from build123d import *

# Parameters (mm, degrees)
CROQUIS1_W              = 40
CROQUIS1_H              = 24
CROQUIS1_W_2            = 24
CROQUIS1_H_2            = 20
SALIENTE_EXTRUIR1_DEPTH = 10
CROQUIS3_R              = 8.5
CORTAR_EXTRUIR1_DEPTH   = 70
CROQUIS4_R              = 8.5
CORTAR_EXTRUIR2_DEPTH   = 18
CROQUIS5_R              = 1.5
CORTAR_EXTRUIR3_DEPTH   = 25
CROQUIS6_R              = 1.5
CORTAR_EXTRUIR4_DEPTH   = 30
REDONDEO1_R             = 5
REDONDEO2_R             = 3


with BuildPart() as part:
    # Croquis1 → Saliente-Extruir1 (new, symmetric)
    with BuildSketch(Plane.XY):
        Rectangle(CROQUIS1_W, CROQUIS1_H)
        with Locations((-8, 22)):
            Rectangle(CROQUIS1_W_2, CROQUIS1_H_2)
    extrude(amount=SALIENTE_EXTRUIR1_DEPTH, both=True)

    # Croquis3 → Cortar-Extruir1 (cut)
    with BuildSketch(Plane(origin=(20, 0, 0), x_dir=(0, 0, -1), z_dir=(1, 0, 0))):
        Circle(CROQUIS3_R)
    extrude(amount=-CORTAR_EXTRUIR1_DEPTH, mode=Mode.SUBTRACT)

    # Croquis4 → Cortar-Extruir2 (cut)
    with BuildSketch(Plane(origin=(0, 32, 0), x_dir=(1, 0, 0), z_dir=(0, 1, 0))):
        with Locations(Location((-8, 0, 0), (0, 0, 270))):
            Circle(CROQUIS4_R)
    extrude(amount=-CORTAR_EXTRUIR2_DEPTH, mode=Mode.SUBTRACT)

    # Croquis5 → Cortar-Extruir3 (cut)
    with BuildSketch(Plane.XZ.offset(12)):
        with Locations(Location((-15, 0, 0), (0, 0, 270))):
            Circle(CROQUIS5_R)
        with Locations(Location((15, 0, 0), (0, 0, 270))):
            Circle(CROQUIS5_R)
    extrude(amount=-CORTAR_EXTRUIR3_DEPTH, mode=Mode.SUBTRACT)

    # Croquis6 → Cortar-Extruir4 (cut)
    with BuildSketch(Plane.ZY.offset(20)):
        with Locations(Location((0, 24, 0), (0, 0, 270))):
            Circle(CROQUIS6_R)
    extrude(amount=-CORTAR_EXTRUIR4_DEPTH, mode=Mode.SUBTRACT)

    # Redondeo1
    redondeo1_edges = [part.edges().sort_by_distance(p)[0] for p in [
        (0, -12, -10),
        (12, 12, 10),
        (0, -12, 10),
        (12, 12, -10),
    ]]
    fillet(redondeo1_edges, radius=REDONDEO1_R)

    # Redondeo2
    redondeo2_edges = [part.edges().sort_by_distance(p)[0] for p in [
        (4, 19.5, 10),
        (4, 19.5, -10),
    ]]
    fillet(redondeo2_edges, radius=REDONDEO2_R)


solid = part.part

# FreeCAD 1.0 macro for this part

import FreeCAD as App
import Part
import Sketcher
from FreeCAD import Vector
Q = App.Units.Quantity


def edges_at(feature, points):
    """Names of the edges that pass closest to the given points."""
    edges = feature.Shape.Edges
    near = lambda p: min(range(len(edges)), key=lambda i: edges[i].distToShape(Part.Vertex(*p))[0])
    return sorted({f"Edge{near(p) + 1}" for p in points})


def add_polygon(sketch, points):
    """Adds a closed chain of lines whose ends are joined by coincident constraints."""
    first, n = sketch.GeometryCount, len(points)
    for a, b in zip(points, points[1:] + points[:1]):
        sketch.addGeometry(Part.LineSegment(App.Vector(*a, 0), App.Vector(*b, 0)), False)
    for i in range(n):
        sketch.addConstraint(Sketcher.Constraint("Coincident", first + i, 2, first + (i + 1) % n, 1))

doc = App.newDocument("Part")
params = doc.addObject("Spreadsheet::Sheet", "Params")
for row, (alias, value) in enumerate([
    ("sketch1_width", "40 mm"),
    ("sketch1_width2", "16 mm"),
    ("sketch1_height", "20 mm"),
    ("pad1_length", "20 mm"),
    ("sketch2_diameter", "17 mm"),
    ("pocket1_length", "70 mm"),
    ("sketch3_diameter", "17 mm"),
    ("pocket2_length", "18 mm"),
    ("sketch4_diameter", "3 mm"),
    ("pocket3_length", "25 mm"),
    ("sketch5_diameter", "3 mm"),
    ("pocket4_length", "30 mm"),
    ("fillet_radius", "5 mm"),
    ("fillet2_radius", "3 mm"),
], start=1):
    params.set(f"A{row}", alias)
    params.set(f"B{row}", "=" + value)
    params.setAlias(f"B{row}", alias)

body = doc.addObject("PartDesign::Body", "Body")

# Sketch on XY plane
sketch1 = body.newObject("Sketcher::SketchObject", "Sketch")
sketch1.AttachmentSupport = (doc.getObject("XY_Plane"), [""])
sketch1.MapMode = "FlatFace"
add_polygon(sketch1, [(-20, -12), (20, -12), (20, 12), (4, 12), (4, 32), (-20, 32)])  # lines 0-5
sketch1.addConstraint([
    Sketcher.Constraint("Horizontal", 0),
    Sketcher.Constraint("Vertical", 1),
    Sketcher.Constraint("Horizontal", 2),
    Sketcher.Constraint("Vertical", 3),
    Sketcher.Constraint("Horizontal", 4),
    Sketcher.Constraint("Vertical", 5),
    Sketcher.Constraint("Symmetric", 1, 2, 5, 2, -1, 1),
    Sketcher.Constraint("Equal", 4, 1),
    Sketcher.Constraint("DistanceX", 0, 1, 0, 2, Q("40 mm")),
    Sketcher.Constraint("DistanceX", 2, 2, 2, 1, Q("16 mm")),
    Sketcher.Constraint("DistanceY", 3, 1, 3, 2, Q("20 mm")),
])
sketch1.setExpression("Constraints[14]", "Params.sketch1_width")
sketch1.setExpression("Constraints[15]", "Params.sketch1_width2")
sketch1.setExpression("Constraints[16]", "Params.sketch1_height")
pad1 = body.newObject("PartDesign::Pad", "Pad")
pad1.Profile = sketch1
pad1.setExpression("Length", "Params.pad1_length")
pad1.Midplane = True

# Sketch on YZ plane
sketch2 = body.newObject("Sketcher::SketchObject", "Sketch001")
sketch2.AttachmentSupport = (doc.getObject("YZ_Plane"), [""])
sketch2.MapMode = "FlatFace"
sketch2.AttachmentOffset = App.Placement(Vector(0, 0, 20), App.Rotation())
sketch2.addGeometry(Part.Circle(Vector(0, 0, 0), Vector(0, 0, 1), 8), False)
sketch2.addConstraint([
    Sketcher.Constraint("Coincident", 0, 3, -1, 1),
    Sketcher.Constraint("Diameter", 0, Q("17 mm")),
])
sketch2.setExpression("Constraints[1]", "Params.sketch2_diameter")
pocket1 = body.newObject("PartDesign::Pocket", "Pocket")
pocket1.Profile = sketch2
pocket1.setExpression("Length", "Params.pocket1_length")

# Sketch on XZ plane
sketch3 = body.newObject("Sketcher::SketchObject", "Sketch002")
sketch3.AttachmentSupport = (doc.getObject("XZ_Plane"), [""])
sketch3.MapMode = "FlatFace"
sketch3.AttachmentOffset = App.Placement(Vector(0, 0, -32), App.Rotation())
sketch3.addGeometry(Part.Circle(Vector(-8, 0, 0), Vector(0, 0, 1), 8), False)
sketch3.addConstraint([
    Sketcher.Constraint("PointOnObject", 0, 3, -1),
    Sketcher.Constraint("Diameter", 0, Q("17 mm")),
    Sketcher.Constraint("DistanceX", 0, 3, -1, 1, Q("8 mm")),
])
sketch3.setExpression("Constraints[1]", "Params.sketch3_diameter")
pocket2 = body.newObject("PartDesign::Pocket", "Pocket001")
pocket2.Profile = sketch3
pocket2.setExpression("Length", "Params.pocket2_length")
pocket2.Reversed = True

# Sketch on XZ plane
sketch4 = body.newObject("Sketcher::SketchObject", "Sketch003")
sketch4.AttachmentSupport = (doc.getObject("XZ_Plane"), [""])
sketch4.MapMode = "FlatFace"
sketch4.AttachmentOffset = App.Placement(Vector(0, 0, 12), App.Rotation())
sketch4.addGeometry([
    Part.Circle(Vector(-15, 0, 0), Vector(0, 0, 1), 1.5),
    Part.Circle(Vector(15, 0, 0), Vector(0, 0, 1), 1.5),
], False)
sketch4.addConstraint([
    Sketcher.Constraint("Equal", 0, 1),
    Sketcher.Constraint("Symmetric", 0, 3, 1, 3, -1, 1),
    Sketcher.Constraint("PointOnObject", 0, 3, -1),
    Sketcher.Constraint("Diameter", 0, Q("3 mm")),
    Sketcher.Constraint("DistanceX", 0, 3, -1, 1, Q("15 mm")),
])
sketch4.setExpression("Constraints[3]", "Params.sketch4_diameter")
pocket3 = body.newObject("PartDesign::Pocket", "Pocket002")
pocket3.Profile = sketch4
pocket3.setExpression("Length", "Params.pocket3_length")

# Sketch on YZ plane
sketch5 = body.newObject("Sketcher::SketchObject", "Sketch004")
sketch5.AttachmentSupport = (doc.getObject("YZ_Plane"), [""])
sketch5.MapMode = "FlatFace"
sketch5.AttachmentOffset = App.Placement(Vector(0, 0, -20), App.Rotation())
sketch5.addGeometry(Part.Circle(Vector(24, 0, 0), Vector(0, 0, 1), 1.5), False)
sketch5.addConstraint([
    Sketcher.Constraint("PointOnObject", 0, 3, -1),
    Sketcher.Constraint("Diameter", 0, Q("3 mm")),
    Sketcher.Constraint("DistanceX", -1, 1, 0, 3, Q("24 mm")),
])
sketch5.setExpression("Constraints[1]", "Params.sketch5_diameter")
pocket4 = body.newObject("PartDesign::Pocket", "Pocket003")
pocket4.Profile = sketch5
pocket4.setExpression("Length", "Params.pocket4_length")
pocket4.Reversed = True
doc.recompute()

fillet = body.newObject("PartDesign::Fillet", "Fillet")
fillet.Base = (pocket4, edges_at(pocket4, [
    (0, -12, -10),
    (12, 12, 10),
    (0, -12, 10),
    (12, 12, -10),
]))
fillet.setExpression("Radius", "Params.fillet_radius")
doc.recompute()

fillet2 = body.newObject("PartDesign::Fillet", "Fillet001")
fillet2.Base = (fillet, edges_at(fillet, [(4, 19.5, 10), (4, 19.5, -10)]))
fillet2.setExpression("Radius", "Params.fillet2_radius")

doc.recompute()
